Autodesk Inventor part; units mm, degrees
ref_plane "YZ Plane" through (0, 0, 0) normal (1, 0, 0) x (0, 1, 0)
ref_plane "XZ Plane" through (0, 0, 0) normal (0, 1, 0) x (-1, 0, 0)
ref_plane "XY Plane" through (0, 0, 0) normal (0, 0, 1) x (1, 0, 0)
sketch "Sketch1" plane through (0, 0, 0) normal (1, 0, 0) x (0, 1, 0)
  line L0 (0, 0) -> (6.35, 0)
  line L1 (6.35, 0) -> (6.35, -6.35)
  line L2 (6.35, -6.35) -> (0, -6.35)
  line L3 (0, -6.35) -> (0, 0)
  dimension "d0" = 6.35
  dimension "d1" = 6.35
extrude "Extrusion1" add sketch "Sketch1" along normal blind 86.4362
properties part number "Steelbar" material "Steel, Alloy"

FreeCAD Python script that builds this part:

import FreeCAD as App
import Part
import Sketcher

V = App.Vector
Q = App.Units.Quantity

doc = App.newDocument("Part")
params = doc.addObject("Spreadsheet::Sheet", "Params")
for row, (alias, value) in enumerate([
    ("sketch1_width", "0.25 in"),
    ("pad1_length", "3.403 in"),
], start=1):
    params.set(f"A{row}", alias)
    params.set(f"B{row}", "=" + value)
    params.setAlias(f"B{row}", alias)

body = doc.addObject("PartDesign::Body", "Body")

sketch1 = doc.addObject("Sketcher::SketchObject", "Sketch")
body.addObject(sketch1)
sketch1.AttachmentSupport = (doc.YZ_Plane, [""])
sketch1.MapMode = "FlatFace"
sketch1.addGeometry(Part.LineSegment(V(6, 0, 0), V(0, 0, 0)), False)
sketch1.addGeometry(Part.LineSegment(V(0, 0, 0), V(0, -6, 0)), False)
sketch1.addGeometry(Part.LineSegment(V(0, -6, 0), V(6, -6, 0)), False)
sketch1.addGeometry(Part.LineSegment(V(6, -6, 0), V(6, 0, 0)), False)
sketch1.addConstraint(Sketcher.Constraint("Coincident", 0, 2, 1, 1))
sketch1.addConstraint(Sketcher.Constraint("Coincident", 1, 2, 2, 1))
sketch1.addConstraint(Sketcher.Constraint("Coincident", 2, 2, 3, 1))
sketch1.addConstraint(Sketcher.Constraint("Coincident", 3, 2, 0, 1))
sketch1.addConstraint(Sketcher.Constraint("Horizontal", 0))
sketch1.addConstraint(Sketcher.Constraint("Vertical", 1))
sketch1.addConstraint(Sketcher.Constraint("Horizontal", 2))
sketch1.addConstraint(Sketcher.Constraint("Vertical", 3))
sketch1.addConstraint(Sketcher.Constraint("Coincident", 0, 2, -1, 1))
sketch1.addConstraint(Sketcher.Constraint("Equal", 2, 1))
sketch1.addConstraint(Sketcher.Constraint("DistanceX", 0, 2, 0, 1, Q("0.25 in")))
sketch1.setExpression("Constraints[10]", "Params.sketch1_width")
pad1 = doc.addObject("PartDesign::Pad", "Pad")
body.addObject(pad1)
pad1.Profile = sketch1
pad1.setExpression("Length", "Params.pad1_length")

doc.recompute()
